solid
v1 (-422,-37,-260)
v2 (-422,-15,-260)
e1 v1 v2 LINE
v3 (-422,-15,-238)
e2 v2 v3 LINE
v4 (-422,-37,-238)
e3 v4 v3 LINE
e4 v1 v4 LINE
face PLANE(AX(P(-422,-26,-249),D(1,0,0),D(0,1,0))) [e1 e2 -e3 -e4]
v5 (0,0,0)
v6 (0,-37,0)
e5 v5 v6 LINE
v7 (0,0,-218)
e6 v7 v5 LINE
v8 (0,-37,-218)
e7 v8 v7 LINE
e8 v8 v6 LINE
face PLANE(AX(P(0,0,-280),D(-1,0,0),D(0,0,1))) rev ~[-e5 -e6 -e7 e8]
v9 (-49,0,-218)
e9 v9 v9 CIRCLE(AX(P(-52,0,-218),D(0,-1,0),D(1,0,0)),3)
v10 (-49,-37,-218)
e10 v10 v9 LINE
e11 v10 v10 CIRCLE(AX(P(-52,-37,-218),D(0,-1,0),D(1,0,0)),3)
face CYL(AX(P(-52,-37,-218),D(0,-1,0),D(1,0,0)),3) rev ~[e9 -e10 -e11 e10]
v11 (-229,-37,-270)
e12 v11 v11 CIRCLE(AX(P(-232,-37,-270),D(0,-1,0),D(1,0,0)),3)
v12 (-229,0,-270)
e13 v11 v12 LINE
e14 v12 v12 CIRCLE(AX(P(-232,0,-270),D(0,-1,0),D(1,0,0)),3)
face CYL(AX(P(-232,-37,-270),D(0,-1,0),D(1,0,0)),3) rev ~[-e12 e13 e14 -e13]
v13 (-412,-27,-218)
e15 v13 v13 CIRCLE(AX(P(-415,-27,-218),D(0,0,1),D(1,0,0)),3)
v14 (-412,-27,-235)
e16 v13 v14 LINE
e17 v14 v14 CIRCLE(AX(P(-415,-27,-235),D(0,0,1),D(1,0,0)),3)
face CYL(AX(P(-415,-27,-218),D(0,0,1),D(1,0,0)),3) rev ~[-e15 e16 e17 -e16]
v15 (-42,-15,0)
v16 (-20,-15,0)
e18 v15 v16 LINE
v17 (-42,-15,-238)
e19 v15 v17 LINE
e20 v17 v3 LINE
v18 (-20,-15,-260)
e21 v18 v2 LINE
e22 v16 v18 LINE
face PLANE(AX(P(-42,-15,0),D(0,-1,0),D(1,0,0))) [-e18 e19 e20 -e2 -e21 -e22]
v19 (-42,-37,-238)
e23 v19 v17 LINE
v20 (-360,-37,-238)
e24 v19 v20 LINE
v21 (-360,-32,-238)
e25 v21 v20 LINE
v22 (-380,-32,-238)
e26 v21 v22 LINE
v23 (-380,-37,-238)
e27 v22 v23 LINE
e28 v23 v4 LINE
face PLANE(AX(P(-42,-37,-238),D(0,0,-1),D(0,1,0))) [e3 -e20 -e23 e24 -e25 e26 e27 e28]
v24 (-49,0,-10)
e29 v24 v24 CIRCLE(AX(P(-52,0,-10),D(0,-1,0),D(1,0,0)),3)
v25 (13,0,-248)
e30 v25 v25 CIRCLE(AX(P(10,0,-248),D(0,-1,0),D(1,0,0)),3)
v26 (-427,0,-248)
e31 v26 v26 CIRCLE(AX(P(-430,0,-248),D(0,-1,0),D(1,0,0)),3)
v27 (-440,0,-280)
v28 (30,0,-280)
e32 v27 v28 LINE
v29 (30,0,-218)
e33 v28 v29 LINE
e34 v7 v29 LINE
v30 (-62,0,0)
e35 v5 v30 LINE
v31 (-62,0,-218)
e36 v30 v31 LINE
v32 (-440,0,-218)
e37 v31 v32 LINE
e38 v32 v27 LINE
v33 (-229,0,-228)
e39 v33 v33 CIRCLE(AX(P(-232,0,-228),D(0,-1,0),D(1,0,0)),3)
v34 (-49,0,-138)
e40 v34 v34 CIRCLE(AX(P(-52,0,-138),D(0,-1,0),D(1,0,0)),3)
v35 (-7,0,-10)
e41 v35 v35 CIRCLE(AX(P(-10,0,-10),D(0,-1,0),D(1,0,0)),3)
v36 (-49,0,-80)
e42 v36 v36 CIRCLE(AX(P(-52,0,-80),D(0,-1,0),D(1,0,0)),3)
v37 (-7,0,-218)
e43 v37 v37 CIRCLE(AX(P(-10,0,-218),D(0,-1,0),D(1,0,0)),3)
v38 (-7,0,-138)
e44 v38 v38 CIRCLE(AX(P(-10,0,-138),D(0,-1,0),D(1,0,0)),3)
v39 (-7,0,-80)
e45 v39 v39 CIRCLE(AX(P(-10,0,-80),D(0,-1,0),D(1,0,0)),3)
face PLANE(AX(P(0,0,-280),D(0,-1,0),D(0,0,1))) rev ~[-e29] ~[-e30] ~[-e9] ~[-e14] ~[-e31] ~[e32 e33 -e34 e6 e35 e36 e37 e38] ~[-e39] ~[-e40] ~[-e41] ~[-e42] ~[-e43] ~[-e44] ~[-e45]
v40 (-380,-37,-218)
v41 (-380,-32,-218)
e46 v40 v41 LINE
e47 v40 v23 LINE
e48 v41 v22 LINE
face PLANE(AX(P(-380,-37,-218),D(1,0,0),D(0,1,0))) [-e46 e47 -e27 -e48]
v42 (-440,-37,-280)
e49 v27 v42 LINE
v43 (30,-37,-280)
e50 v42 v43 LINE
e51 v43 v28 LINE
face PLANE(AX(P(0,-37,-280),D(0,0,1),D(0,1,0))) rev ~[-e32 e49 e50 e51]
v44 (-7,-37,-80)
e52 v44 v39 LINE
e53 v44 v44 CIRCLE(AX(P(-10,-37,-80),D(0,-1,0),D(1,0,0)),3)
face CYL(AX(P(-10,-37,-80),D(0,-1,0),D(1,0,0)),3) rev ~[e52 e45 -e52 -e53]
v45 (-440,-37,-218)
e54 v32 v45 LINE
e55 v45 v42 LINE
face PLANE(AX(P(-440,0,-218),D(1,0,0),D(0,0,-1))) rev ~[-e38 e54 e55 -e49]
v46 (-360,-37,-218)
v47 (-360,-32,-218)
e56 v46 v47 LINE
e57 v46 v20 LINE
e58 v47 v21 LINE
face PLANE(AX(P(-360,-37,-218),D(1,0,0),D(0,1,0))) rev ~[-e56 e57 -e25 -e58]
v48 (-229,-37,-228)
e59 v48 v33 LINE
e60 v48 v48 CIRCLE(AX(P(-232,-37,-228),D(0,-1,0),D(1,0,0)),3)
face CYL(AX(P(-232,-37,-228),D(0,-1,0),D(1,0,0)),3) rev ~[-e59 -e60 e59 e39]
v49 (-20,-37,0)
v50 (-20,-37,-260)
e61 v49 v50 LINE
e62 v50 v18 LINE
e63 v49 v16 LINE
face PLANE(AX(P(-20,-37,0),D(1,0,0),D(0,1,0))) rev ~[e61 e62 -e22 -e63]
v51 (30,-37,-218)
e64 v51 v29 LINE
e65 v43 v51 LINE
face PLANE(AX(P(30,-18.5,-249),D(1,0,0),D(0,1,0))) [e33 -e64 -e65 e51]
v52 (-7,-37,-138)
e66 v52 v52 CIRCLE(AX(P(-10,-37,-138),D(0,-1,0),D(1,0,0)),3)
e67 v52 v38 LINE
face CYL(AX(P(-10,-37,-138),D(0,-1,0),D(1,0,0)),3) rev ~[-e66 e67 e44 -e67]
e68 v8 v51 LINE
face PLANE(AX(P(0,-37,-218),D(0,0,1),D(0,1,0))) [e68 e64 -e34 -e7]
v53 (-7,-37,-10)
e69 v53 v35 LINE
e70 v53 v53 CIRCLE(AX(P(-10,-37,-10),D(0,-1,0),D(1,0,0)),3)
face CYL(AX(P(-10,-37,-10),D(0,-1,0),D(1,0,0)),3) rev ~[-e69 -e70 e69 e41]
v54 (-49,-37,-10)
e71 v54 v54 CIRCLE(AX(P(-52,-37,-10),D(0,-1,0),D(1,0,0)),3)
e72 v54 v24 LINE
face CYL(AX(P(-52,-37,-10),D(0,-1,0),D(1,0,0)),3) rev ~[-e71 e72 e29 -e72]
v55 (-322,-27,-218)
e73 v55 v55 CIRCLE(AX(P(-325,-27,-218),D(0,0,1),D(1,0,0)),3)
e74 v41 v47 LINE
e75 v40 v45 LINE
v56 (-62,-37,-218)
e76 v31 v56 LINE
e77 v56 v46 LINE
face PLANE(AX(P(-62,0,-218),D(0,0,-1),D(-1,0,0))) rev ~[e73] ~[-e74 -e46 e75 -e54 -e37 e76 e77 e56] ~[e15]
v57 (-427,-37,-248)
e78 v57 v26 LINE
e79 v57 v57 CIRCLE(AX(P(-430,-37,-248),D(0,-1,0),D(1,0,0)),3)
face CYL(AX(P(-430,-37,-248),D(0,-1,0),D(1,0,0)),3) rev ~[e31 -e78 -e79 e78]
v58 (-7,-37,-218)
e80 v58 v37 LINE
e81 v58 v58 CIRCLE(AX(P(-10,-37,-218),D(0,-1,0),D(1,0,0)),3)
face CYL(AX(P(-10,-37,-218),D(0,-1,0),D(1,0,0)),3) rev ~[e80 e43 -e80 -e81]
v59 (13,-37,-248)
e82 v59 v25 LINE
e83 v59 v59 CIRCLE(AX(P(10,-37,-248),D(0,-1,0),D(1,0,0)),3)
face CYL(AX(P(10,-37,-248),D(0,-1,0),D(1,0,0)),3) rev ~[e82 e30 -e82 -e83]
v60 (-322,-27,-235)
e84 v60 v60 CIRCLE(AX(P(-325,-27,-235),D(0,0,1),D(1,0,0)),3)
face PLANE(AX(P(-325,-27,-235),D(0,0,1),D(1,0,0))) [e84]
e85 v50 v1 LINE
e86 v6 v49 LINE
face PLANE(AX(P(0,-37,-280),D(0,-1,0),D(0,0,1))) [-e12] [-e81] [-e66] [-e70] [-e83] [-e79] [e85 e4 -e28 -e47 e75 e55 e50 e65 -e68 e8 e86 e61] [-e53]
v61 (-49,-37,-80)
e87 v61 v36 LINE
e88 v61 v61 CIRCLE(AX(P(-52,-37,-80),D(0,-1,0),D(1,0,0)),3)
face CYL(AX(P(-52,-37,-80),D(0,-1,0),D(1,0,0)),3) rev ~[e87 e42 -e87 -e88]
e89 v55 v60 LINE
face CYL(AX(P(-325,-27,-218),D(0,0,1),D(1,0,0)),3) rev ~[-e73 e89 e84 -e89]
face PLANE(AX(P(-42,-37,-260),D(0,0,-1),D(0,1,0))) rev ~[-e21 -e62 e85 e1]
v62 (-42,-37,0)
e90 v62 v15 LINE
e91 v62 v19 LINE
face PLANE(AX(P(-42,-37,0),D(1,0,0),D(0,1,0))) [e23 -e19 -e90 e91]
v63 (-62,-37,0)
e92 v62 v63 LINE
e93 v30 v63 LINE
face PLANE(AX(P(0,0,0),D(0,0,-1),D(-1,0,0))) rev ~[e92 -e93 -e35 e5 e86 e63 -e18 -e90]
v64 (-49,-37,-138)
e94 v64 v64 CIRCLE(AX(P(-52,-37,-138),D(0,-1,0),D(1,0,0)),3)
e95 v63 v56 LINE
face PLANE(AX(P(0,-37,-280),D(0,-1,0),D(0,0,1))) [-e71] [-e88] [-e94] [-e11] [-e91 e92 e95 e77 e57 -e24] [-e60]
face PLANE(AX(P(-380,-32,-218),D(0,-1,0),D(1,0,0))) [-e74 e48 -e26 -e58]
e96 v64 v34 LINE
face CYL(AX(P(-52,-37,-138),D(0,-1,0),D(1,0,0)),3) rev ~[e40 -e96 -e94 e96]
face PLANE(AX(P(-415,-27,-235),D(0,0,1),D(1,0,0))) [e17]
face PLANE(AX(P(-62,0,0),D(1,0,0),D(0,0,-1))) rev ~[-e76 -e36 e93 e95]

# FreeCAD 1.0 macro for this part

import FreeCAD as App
import Part
import Sketcher

V = App.Vector


def add_polygon(sketch, points):
    """Adds a closed chain of lines whose ends are joined by coincident constraints."""
    first, n = sketch.GeometryCount, len(points)
    for a, b in zip(points, points[1:] + points[:1]):
        sketch.addGeometry(Part.LineSegment(App.Vector(*a, 0), App.Vector(*b, 0)), False)
    for i in range(n):
        sketch.addConstraint(Sketcher.Constraint("Coincident", first + i, 2, first + (i + 1) % n, 1))

doc = App.newDocument("Part")
params = doc.addObject("Spreadsheet::Sheet", "Params")
for row, (alias, value) in enumerate([
    ("sketch1_width", "62 mm"),
    ("sketch1_width2", "378 mm"),
    ("sketch1_height", "280 mm"),
    ("pad1_length", "37 mm"),
    ("sketch2_width", "22 mm"),
    ("pocket1_length", "260 mm"),
    ("sketch3_width", "37 mm"),
    ("sketch3_height", "62 mm"),
    ("pad2_length", "30 mm"),
    ("sketch4_width", "22 mm"),
    ("pocket2_length", "380 mm"),
    ("sketch5_width", "20 mm"),
    ("sketch5_height", "5 mm"),
    ("pocket3_length", "25 mm"),
    ("sketch6_diameter", "6 mm"),
    ("sketch7_diameter", "6 mm"),
    ("pocket5_length", "17 mm"),
], start=1):
    params.set(f"A{row}", alias)
    params.set(f"B{row}", "=" + value)
    params.setAlias(f"B{row}", alias)

body = doc.addObject("PartDesign::Body", "Body")

sketch1 = body.newObject("Sketcher::SketchObject", "Sketch")
sketch1.AttachmentSupport = (doc.getObject("XZ_Plane"), [""])
sketch1.MapMode = "FlatFace"
add_polygon(sketch1, [(0, -280), (0, 0), (-62, 0), (-62, -218), (-440, -218), (-440, -280)])
sketch1.addConstraint(Sketcher.Constraint("Vertical", 0))
sketch1.addConstraint(Sketcher.Constraint("Horizontal", 1))
sketch1.addConstraint(Sketcher.Constraint("Vertical", 2))
sketch1.addConstraint(Sketcher.Constraint("Horizontal", 3))
sketch1.addConstraint(Sketcher.Constraint("Vertical", 4))
sketch1.addConstraint(Sketcher.Constraint("Horizontal", 5))
sketch1.addConstraint(Sketcher.Constraint("Coincident", 0, 2, -1, 1))
sketch1.addConstraint(Sketcher.Constraint("Equal", 1, 4))
sketch1.addConstraint(Sketcher.Constraint("DistanceX", 1, 2, 1, 1, 62.0))
sketch1.addConstraint(Sketcher.Constraint("DistanceX", 3, 2, 3, 1, 378.0))
sketch1.addConstraint(Sketcher.Constraint("DistanceY", 0, 1, 0, 2, 280.0))
sketch1.setExpression("Constraints[14]", "Params.sketch1_width")
sketch1.setExpression("Constraints[15]", "Params.sketch1_width2")
sketch1.setExpression("Constraints[16]", "Params.sketch1_height")
pad1 = body.newObject("PartDesign::Pad", "Pad")
pad1.Profile = sketch1
pad1.setExpression("Length", "Params.pad1_length")

sketch2 = body.newObject("Sketcher::SketchObject", "Sketch001")
sketch2.AttachmentSupport = (doc.getObject("XY_Plane"), [""])
sketch2.MapMode = "FlatFace"
add_polygon(sketch2, [(-42, -15), (-42, -37), (-20, -37), (-20, -15)])
sketch2.addConstraint(Sketcher.Constraint("Vertical", 0))
sketch2.addConstraint(Sketcher.Constraint("Horizontal", 1))
sketch2.addConstraint(Sketcher.Constraint("Vertical", 2))
sketch2.addConstraint(Sketcher.Constraint("Horizontal", 3))
sketch2.addConstraint(Sketcher.Constraint("Equal", 3, 0))
sketch2.addConstraint(Sketcher.Constraint("DistanceX", 1, 1, 1, 2, 22.0))
sketch2.addConstraint(Sketcher.Constraint("DistanceX", 0, 2, -1, 1, 42.0))
sketch2.addConstraint(Sketcher.Constraint("DistanceY", 0, 2, -1, 1, 37.0))
sketch2.setExpression("Constraints[9]", "Params.sketch2_width")
pocket1 = body.newObject("PartDesign::Pocket", "Pocket")
pocket1.Profile = sketch2
pocket1.setExpression("Length", "Params.pocket1_length")

sketch3 = body.newObject("Sketcher::SketchObject", "Sketch002")
sketch3.AttachmentSupport = (doc.getObject("YZ_Plane"), [""])
sketch3.MapMode = "FlatFace"
add_polygon(sketch3, [(-37, -218), (-37, -280), (0, -280), (0, -218)])
sketch3.addConstraint(Sketcher.Constraint("Vertical", 0))
sketch3.addConstraint(Sketcher.Constraint("Horizontal", 1))
sketch3.addConstraint(Sketcher.Constraint("Vertical", 2))
sketch3.addConstraint(Sketcher.Constraint("Horizontal", 3))
sketch3.addConstraint(Sketcher.Constraint("PointOnObject", 1, 2, -2))
sketch3.addConstraint(Sketcher.Constraint("DistanceX", 1, 1, 1, 2, 37.0))
sketch3.addConstraint(Sketcher.Constraint("DistanceY", 0, 2, 0, 1, 62.0))
sketch3.addConstraint(Sketcher.Constraint("DistanceY", 0, 2, -1, 1, 280.0))
sketch3.setExpression("Constraints[9]", "Params.sketch3_width")
sketch3.setExpression("Constraints[10]", "Params.sketch3_height")
pad2 = body.newObject("PartDesign::Pad", "Pad001")
pad2.Profile = sketch3
pad2.setExpression("Length", "Params.pad2_length")

sketch4 = body.newObject("Sketcher::SketchObject", "Sketch003")
sketch4.AttachmentSupport = (doc.getObject("YZ_Plane"), [""])
sketch4.MapMode = "FlatFace"
sketch4.AttachmentOffset = App.Placement(V(0, 0, -42), App.Rotation())
add_polygon(sketch4, [(-37, -238), (-37, -260), (-15, -260), (-15, -238)])
sketch4.addConstraint(Sketcher.Constraint("Vertical", 0))
sketch4.addConstraint(Sketcher.Constraint("Horizontal", 1))
sketch4.addConstraint(Sketcher.Constraint("Vertical", 2))
sketch4.addConstraint(Sketcher.Constraint("Horizontal", 3))
sketch4.addConstraint(Sketcher.Constraint("Equal", 3, 0))
sketch4.addConstraint(Sketcher.Constraint("DistanceX", 1, 1, 1, 2, 22.0))
sketch4.addConstraint(Sketcher.Constraint("DistanceX", 0, 2, -1, 1, 37.0))
sketch4.addConstraint(Sketcher.Constraint("DistanceY", 0, 2, -1, 1, 260.0))
sketch4.setExpression("Constraints[9]", "Params.sketch4_width")
pocket2 = body.newObject("PartDesign::Pocket", "Pocket001")
pocket2.Profile = sketch4
pocket2.setExpression("Length", "Params.pocket2_length")

sketch5 = body.newObject("Sketcher::SketchObject", "Sketch004")
sketch5.AttachmentSupport = (doc.getObject("XY_Plane"), [""])
sketch5.MapMode = "FlatFace"
sketch5.AttachmentOffset = App.Placement(V(0, 0, -218), App.Rotation())
add_polygon(sketch5, [(-380, -32), (-380, -37), (-360, -37), (-360, -32)])
sketch5.addConstraint(Sketcher.Constraint("Vertical", 0))
sketch5.addConstraint(Sketcher.Constraint("Horizontal", 1))
sketch5.addConstraint(Sketcher.Constraint("Vertical", 2))
sketch5.addConstraint(Sketcher.Constraint("Horizontal", 3))
sketch5.addConstraint(Sketcher.Constraint("DistanceX", 1, 1, 1, 2, 20.0))
sketch5.addConstraint(Sketcher.Constraint("DistanceY", 0, 2, 0, 1, 5.0))
sketch5.addConstraint(Sketcher.Constraint("DistanceX", 0, 2, -1, 1, 380.0))
sketch5.addConstraint(Sketcher.Constraint("DistanceY", 0, 2, -1, 1, 37.0))
sketch5.setExpression("Constraints[8]", "Params.sketch5_width")
sketch5.setExpression("Constraints[9]", "Params.sketch5_height")
pocket3 = body.newObject("PartDesign::Pocket", "Pocket002")
pocket3.Profile = sketch5
pocket3.setExpression("Length", "Params.pocket3_length")

sketch6 = body.newObject("Sketcher::SketchObject", "Sketch005")
sketch6.AttachmentSupport = (doc.getObject("XZ_Plane"), [""])
sketch6.MapMode = "FlatFace"
sketch6.AttachmentOffset = App.Placement(V(0, 0, 37), App.Rotation())
sketch6.addGeometry(Part.Circle(V(-52, -10, 0), V(0, 0, 1), 3), False)
sketch6.addGeometry(Part.Circle(V(-10, -10, 0), V(0, 0, 1), 3), False)
sketch6.addGeometry(Part.Circle(V(-52, -80, 0), V(0, 0, 1), 3), False)
sketch6.addGeometry(Part.Circle(V(-10, -80, 0), V(0, 0, 1), 3), False)
sketch6.addGeometry(Part.Circle(V(-52, -138, 0), V(0, 0, 1), 3), False)
sketch6.addGeometry(Part.Circle(V(-10, -138, 0), V(0, 0, 1), 3), False)
sketch6.addGeometry(Part.Circle(V(-52, -218, 0), V(0, 0, 1), 3), False)
sketch6.addGeometry(Part.Circle(V(-10, -218, 0), V(0, 0, 1), 3), False)
sketch6.addGeometry(Part.Circle(V(10, -248, 0), V(0, 0, 1), 3), False)
sketch6.addGeometry(Part.Circle(V(-232, -270, 0), V(0, 0, 1), 3), False)
sketch6.addGeometry(Part.Circle(V(-232, -228, 0), V(0, 0, 1), 3), False)
sketch6.addGeometry(Part.Circle(V(-430, -248, 0), V(0, 0, 1), 3), False)
sketch6.addConstraint(Sketcher.Constraint("Equal", 0, 1))
sketch6.addConstraint(Sketcher.Constraint("Equal", 1, 2))
sketch6.addConstraint(Sketcher.Constraint("Equal", 2, 3))
sketch6.addConstraint(Sketcher.Constraint("Equal", 3, 4))
sketch6.addConstraint(Sketcher.Constraint("Equal", 4, 5))
sketch6.addConstraint(Sketcher.Constraint("Equal", 5, 6))
sketch6.addConstraint(Sketcher.Constraint("Equal", 6, 7))
sketch6.addConstraint(Sketcher.Constraint("Equal", 7, 8))
sketch6.addConstraint(Sketcher.Constraint("Equal", 8, 9))
sketch6.addConstraint(Sketcher.Constraint("Equal", 9, 10))
sketch6.addConstraint(Sketcher.Constraint("Equal", 10, 11))
sketch6.addConstraint(Sketcher.Constraint("Horizontal", 0, 3, 1, 3))
sketch6.addConstraint(Sketcher.Constraint("Horizontal", 2, 3, 3, 3))
sketch6.addConstraint(Sketcher.Constraint("Horizontal", 4, 3, 5, 3))
sketch6.addConstraint(Sketcher.Constraint("Horizontal", 6, 3, 7, 3))
sketch6.addConstraint(Sketcher.Constraint("Horizontal", 8, 3, 11, 3))
sketch6.addConstraint(Sketcher.Constraint("Vertical", 0, 3, 2, 3))
sketch6.addConstraint(Sketcher.Constraint("Vertical", 1, 3, 3, 3))
sketch6.addConstraint(Sketcher.Constraint("Vertical", 2, 3, 4, 3))
sketch6.addConstraint(Sketcher.Constraint("Vertical", 3, 3, 5, 3))
sketch6.addConstraint(Sketcher.Constraint("Vertical", 4, 3, 6, 3))
sketch6.addConstraint(Sketcher.Constraint("Vertical", 5, 3, 7, 3))
sketch6.addConstraint(Sketcher.Constraint("Vertical", 9, 3, 10, 3))
sketch6.addConstraint(Sketcher.Constraint("Diameter", 0, 6.0))
sketch6.addConstraint(Sketcher.Constraint("DistanceX", 0, 3, -1, 1, 52.0))
sketch6.addConstraint(Sketcher.Constraint("DistanceY", 0, 3, -1, 1, 10.0))
sketch6.addConstraint(Sketcher.Constraint("DistanceX", 1, 3, -1, 1, 10.0))
sketch6.addConstraint(Sketcher.Constraint("DistanceY", 2, 3, -1, 1, 80.0))
sketch6.addConstraint(Sketcher.Constraint("DistanceY", 4, 3, -1, 1, 138.0))
sketch6.addConstraint(Sketcher.Constraint("DistanceY", 6, 3, -1, 1, 218.0))
sketch6.addConstraint(Sketcher.Constraint("DistanceX", -1, 1, 8, 3, 10.0))
sketch6.addConstraint(Sketcher.Constraint("DistanceY", 8, 3, -1, 1, 248.0))
sketch6.addConstraint(Sketcher.Constraint("DistanceX", 9, 3, -1, 1, 232.0))
sketch6.addConstraint(Sketcher.Constraint("DistanceY", 9, 3, -1, 1, 270.0))
sketch6.addConstraint(Sketcher.Constraint("DistanceY", 10, 3, -1, 1, 228.0))
sketch6.addConstraint(Sketcher.Constraint("DistanceX", 11, 3, -1, 1, 430.0))
sketch6.setExpression("Constraints[23]", "Params.sketch6_diameter")
pocket4 = body.newObject("PartDesign::Pocket", "Pocket003")
pocket4.Profile = sketch6
pocket4.Type = "ThroughAll"

sketch7 = body.newObject("Sketcher::SketchObject", "Sketch006")
sketch7.AttachmentSupport = (doc.getObject("XY_Plane"), [""])
sketch7.MapMode = "FlatFace"
sketch7.AttachmentOffset = App.Placement(V(0, 0, -218), App.Rotation())
sketch7.addGeometry(Part.Circle(V(-415, -27, 0), V(0, 0, 1), 3), False)
sketch7.addGeometry(Part.Circle(V(-325, -27, 0), V(0, 0, 1), 3), False)
sketch7.addConstraint(Sketcher.Constraint("Equal", 0, 1))
sketch7.addConstraint(Sketcher.Constraint("Horizontal", 0, 3, 1, 3))
sketch7.addConstraint(Sketcher.Constraint("Diameter", 0, 6.0))
sketch7.addConstraint(Sketcher.Constraint("DistanceX", 0, 3, -1, 1, 415.0))
sketch7.addConstraint(Sketcher.Constraint("DistanceY", 0, 3, -1, 1, 27.0))
sketch7.addConstraint(Sketcher.Constraint("DistanceX", 1, 3, -1, 1, 325.0))
sketch7.setExpression("Constraints[2]", "Params.sketch7_diameter")
pocket5 = body.newObject("PartDesign::Pocket", "Pocket004")
pocket5.Profile = sketch7
pocket5.setExpression("Length", "Params.pocket5_length")

doc.recompute()
